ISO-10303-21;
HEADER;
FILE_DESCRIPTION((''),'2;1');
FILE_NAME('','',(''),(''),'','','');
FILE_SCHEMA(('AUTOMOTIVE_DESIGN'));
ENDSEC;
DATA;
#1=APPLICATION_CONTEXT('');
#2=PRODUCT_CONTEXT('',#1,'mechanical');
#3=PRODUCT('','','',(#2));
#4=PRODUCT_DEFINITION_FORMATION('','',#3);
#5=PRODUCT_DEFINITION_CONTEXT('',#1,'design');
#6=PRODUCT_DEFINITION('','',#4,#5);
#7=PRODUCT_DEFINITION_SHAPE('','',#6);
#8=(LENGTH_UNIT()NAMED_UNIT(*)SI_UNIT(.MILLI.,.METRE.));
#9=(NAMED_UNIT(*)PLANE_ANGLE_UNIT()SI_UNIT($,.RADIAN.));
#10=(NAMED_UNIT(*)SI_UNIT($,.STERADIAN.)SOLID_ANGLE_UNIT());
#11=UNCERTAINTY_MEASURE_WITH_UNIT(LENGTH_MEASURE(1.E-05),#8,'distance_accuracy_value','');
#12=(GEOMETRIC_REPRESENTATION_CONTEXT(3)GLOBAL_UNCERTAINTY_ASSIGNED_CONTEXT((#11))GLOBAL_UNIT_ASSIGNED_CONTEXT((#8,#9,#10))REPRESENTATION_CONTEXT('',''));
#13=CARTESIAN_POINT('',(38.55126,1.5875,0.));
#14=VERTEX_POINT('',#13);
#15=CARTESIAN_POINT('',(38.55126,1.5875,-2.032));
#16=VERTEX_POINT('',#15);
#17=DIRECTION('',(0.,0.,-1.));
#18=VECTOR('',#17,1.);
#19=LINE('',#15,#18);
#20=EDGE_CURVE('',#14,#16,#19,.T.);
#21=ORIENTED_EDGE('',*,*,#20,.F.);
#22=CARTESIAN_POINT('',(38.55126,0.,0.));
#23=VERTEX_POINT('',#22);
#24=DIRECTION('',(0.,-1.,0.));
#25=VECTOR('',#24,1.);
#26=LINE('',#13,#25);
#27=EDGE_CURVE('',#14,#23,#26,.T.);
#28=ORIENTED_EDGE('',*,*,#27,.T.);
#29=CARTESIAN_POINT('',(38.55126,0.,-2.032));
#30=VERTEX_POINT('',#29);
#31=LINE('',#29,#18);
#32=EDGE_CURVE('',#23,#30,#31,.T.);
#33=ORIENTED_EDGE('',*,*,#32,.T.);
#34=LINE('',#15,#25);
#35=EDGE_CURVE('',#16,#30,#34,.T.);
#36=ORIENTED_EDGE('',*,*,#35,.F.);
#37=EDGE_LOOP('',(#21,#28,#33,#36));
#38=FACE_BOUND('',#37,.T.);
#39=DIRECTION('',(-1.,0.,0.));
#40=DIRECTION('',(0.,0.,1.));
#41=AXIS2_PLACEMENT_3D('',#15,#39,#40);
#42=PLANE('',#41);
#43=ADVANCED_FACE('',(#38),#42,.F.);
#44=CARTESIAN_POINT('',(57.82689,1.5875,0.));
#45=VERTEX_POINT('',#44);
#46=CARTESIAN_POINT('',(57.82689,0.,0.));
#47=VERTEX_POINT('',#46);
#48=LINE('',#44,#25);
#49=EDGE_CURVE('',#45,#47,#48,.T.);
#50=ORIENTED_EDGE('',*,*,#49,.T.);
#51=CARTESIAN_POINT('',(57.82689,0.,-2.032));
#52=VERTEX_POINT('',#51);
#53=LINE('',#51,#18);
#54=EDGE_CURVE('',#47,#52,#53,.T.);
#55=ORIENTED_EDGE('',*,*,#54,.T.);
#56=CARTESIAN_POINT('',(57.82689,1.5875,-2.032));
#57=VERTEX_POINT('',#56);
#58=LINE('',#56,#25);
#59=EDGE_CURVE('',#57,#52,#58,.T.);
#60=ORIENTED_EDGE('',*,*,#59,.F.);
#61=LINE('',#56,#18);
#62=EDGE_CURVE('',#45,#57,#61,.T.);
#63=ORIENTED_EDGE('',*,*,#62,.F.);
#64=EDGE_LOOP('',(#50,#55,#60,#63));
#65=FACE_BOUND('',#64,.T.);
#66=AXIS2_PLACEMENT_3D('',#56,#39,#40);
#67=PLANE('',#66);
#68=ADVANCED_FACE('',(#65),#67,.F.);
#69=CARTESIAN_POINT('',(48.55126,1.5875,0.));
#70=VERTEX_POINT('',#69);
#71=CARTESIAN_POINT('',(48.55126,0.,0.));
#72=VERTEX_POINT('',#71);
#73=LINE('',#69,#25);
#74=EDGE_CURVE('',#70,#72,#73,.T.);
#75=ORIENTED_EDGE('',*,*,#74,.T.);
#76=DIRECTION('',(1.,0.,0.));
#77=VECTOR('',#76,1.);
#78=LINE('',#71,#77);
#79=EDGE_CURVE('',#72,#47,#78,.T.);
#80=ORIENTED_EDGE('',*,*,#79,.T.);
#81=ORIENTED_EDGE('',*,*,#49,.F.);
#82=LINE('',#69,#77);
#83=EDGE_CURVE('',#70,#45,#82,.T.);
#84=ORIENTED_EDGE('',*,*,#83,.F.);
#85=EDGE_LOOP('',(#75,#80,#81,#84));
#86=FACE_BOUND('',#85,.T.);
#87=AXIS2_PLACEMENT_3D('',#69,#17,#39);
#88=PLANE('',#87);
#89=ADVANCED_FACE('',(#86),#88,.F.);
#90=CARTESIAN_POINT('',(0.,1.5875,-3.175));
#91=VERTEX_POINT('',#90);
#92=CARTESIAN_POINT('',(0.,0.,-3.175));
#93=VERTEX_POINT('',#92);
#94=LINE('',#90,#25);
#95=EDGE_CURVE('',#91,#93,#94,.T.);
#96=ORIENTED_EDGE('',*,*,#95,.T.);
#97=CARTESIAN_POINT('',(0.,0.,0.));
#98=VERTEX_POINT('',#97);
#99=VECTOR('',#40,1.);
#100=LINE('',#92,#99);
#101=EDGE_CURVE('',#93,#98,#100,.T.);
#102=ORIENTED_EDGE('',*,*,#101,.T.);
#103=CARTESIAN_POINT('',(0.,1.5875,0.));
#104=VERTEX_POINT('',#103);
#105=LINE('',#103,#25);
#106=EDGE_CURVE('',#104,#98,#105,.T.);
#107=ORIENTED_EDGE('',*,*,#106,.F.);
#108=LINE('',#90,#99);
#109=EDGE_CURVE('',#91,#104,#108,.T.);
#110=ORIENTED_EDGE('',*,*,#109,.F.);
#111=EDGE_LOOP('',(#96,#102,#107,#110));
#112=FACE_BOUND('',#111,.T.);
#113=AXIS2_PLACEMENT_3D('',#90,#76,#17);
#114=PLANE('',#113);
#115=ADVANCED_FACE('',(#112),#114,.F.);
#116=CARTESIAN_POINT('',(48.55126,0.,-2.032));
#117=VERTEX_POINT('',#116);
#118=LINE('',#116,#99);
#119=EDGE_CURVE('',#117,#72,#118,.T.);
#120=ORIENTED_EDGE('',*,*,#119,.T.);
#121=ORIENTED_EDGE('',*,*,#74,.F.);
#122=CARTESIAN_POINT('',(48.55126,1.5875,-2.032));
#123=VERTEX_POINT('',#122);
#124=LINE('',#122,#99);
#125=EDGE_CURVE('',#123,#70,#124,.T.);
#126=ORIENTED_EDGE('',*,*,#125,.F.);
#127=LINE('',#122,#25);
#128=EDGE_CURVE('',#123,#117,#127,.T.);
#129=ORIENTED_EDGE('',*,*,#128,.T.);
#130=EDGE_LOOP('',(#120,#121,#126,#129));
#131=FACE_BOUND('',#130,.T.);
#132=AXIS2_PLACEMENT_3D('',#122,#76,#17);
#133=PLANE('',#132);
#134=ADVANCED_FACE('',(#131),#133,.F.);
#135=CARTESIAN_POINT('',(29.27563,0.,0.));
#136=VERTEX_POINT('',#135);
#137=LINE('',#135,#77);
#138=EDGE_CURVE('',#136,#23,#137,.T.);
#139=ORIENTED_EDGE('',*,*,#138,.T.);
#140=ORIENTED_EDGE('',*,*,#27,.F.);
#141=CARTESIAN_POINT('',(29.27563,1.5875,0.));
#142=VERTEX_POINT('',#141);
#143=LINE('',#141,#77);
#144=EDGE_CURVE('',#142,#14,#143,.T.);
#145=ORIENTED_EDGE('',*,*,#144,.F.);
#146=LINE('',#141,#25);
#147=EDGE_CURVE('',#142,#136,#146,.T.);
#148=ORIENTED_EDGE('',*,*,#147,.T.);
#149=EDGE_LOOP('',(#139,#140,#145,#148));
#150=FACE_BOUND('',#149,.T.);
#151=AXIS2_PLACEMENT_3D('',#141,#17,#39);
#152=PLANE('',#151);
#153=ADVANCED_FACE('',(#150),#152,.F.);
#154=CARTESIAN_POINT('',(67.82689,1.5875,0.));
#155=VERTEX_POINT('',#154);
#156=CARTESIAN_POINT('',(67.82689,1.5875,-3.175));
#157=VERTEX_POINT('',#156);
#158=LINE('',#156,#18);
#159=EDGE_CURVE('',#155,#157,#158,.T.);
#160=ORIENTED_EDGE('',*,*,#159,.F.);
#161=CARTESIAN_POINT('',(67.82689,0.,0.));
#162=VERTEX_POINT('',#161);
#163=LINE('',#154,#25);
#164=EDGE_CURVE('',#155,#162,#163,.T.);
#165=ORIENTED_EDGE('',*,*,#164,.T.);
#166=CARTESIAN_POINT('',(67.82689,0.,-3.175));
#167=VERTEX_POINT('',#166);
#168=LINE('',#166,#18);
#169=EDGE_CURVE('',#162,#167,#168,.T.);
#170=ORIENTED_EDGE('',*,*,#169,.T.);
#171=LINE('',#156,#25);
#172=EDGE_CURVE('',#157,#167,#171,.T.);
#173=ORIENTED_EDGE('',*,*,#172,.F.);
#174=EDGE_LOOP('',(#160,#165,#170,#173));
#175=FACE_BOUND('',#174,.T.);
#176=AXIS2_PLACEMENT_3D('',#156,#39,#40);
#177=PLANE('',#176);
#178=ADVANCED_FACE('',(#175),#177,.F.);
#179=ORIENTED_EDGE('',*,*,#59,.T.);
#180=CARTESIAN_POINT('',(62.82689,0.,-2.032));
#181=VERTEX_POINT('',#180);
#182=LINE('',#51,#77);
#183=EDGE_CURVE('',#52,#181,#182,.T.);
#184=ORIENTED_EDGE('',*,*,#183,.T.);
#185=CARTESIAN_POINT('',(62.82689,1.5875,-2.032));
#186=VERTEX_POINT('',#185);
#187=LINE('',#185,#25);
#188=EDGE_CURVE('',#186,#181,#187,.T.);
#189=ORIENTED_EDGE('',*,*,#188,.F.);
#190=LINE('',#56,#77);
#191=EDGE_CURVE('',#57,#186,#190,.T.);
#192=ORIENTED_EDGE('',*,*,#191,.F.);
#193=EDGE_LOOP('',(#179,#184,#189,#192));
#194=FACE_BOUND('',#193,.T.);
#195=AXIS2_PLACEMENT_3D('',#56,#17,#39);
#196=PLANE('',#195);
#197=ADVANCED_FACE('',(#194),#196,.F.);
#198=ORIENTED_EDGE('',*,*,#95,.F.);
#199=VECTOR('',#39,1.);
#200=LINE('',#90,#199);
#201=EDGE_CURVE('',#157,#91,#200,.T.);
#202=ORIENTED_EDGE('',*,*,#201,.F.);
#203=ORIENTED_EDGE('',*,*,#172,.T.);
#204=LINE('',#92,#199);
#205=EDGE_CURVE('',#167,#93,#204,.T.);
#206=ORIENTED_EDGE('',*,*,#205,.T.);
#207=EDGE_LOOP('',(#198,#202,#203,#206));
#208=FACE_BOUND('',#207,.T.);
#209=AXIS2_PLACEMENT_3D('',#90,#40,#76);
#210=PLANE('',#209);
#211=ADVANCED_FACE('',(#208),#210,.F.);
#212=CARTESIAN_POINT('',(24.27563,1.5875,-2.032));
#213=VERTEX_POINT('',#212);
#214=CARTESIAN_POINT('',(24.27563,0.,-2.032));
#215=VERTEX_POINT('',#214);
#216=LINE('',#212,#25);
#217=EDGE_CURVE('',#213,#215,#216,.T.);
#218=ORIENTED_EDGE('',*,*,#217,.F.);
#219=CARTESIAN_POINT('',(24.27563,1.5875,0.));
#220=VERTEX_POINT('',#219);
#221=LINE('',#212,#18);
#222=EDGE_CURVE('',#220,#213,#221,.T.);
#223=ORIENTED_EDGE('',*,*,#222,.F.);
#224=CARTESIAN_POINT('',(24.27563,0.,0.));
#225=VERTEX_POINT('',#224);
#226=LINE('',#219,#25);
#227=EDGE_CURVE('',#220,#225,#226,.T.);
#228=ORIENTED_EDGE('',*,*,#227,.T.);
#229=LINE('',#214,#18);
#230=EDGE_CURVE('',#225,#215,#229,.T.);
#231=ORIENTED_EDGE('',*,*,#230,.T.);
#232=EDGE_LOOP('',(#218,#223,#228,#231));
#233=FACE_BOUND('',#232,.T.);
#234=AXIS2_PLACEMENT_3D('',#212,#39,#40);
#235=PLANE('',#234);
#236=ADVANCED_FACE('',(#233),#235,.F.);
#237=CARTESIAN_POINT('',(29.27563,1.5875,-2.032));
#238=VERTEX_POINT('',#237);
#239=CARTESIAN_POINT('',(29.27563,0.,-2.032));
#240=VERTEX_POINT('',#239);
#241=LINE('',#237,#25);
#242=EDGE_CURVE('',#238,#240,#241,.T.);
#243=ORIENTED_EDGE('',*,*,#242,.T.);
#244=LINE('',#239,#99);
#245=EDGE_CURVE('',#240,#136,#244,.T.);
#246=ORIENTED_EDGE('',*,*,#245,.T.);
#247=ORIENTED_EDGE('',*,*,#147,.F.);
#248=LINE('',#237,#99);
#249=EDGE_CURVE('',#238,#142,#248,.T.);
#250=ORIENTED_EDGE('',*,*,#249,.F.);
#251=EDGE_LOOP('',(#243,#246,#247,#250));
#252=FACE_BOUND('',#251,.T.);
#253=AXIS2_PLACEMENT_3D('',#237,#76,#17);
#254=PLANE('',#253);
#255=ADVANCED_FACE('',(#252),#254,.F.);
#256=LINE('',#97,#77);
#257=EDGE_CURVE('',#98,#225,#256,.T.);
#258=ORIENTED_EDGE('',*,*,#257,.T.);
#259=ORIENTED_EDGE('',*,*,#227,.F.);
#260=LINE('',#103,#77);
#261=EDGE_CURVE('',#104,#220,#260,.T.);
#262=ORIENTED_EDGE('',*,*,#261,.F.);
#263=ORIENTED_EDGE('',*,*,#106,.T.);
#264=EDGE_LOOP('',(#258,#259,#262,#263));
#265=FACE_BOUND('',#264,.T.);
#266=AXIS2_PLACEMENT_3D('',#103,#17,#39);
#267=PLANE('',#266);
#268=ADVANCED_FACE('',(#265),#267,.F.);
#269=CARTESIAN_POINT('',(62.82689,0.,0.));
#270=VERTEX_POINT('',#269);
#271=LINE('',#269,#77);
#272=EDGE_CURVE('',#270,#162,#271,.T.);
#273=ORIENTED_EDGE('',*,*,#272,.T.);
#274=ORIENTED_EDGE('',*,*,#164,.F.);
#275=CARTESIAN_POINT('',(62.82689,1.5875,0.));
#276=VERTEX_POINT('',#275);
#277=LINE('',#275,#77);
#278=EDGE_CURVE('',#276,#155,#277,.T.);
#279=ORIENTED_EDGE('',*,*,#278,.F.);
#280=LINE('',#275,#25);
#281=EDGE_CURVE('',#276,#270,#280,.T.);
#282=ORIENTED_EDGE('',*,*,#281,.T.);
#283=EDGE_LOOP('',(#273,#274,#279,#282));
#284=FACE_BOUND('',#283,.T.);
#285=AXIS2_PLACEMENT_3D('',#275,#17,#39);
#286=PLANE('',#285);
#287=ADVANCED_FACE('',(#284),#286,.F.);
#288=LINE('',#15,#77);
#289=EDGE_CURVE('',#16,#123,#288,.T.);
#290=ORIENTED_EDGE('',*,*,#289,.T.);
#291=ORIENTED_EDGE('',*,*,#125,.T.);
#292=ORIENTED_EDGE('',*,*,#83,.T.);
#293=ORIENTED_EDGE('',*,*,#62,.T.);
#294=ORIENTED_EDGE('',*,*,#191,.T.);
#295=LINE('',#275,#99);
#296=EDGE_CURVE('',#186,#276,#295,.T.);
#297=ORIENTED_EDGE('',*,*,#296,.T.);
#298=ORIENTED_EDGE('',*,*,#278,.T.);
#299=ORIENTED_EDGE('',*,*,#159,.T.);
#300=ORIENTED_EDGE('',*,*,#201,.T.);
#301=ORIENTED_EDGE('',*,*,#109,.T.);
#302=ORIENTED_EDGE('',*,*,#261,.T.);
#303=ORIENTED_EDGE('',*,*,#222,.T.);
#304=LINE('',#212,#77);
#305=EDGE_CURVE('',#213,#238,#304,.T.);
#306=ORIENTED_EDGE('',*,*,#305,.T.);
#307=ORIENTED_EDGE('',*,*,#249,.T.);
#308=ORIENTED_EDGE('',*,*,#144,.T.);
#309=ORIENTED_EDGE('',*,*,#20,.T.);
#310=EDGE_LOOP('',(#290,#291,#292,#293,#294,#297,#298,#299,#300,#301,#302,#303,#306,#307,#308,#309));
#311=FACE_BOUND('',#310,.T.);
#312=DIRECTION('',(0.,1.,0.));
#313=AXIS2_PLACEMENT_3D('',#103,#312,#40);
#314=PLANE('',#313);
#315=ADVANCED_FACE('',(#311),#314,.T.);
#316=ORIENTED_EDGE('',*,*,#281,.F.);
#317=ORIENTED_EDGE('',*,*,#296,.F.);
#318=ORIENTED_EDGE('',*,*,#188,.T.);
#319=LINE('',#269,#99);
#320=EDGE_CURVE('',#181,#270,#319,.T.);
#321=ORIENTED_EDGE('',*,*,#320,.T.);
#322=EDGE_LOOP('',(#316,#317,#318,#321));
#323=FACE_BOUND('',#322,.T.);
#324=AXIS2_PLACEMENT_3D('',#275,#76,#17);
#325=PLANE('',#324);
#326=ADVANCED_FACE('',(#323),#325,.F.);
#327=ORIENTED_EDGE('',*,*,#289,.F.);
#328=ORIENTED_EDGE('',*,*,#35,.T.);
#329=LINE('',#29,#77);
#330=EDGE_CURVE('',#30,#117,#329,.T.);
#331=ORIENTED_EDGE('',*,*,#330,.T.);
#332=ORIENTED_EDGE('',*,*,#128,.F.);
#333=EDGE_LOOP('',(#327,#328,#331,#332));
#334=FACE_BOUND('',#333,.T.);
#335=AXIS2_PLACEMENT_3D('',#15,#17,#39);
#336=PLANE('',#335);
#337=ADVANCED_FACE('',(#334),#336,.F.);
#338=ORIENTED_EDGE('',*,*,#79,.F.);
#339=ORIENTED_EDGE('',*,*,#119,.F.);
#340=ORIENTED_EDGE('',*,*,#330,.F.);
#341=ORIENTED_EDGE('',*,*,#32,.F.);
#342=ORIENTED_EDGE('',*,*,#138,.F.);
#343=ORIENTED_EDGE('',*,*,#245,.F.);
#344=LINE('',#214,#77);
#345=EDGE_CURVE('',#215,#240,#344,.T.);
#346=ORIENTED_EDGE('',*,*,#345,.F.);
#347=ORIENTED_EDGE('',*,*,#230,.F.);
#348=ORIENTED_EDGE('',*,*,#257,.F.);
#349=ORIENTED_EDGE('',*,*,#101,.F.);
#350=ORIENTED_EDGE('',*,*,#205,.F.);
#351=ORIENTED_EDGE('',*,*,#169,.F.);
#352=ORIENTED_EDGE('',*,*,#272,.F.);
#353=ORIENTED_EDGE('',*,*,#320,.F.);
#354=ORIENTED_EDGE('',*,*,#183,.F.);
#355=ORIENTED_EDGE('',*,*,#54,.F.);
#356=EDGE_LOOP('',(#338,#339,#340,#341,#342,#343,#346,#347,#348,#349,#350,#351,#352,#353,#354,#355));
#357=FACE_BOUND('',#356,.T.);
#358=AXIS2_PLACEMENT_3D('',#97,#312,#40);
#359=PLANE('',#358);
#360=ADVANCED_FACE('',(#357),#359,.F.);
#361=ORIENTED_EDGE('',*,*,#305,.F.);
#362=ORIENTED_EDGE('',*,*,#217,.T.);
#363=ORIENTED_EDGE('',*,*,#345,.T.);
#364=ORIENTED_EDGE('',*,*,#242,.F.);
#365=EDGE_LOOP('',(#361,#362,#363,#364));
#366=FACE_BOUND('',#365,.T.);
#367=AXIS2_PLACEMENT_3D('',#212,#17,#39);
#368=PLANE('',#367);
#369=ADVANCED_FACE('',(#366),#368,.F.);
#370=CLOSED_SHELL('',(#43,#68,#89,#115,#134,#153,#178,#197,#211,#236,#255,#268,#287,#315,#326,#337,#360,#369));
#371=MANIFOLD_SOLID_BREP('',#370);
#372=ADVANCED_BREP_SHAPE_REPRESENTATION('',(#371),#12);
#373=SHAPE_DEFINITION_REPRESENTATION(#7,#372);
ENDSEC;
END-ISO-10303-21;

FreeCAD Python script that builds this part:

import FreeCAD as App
import Part
import Sketcher
from FreeCAD import Vector
Q = App.Units.Quantity

doc = App.newDocument("Part")
params = doc.addObject("Spreadsheet::Sheet", "Params")
for row, (alias, value) in enumerate([
    ("sketch1_height", "0.08 in"),
    ("sketch1_height2", "0.125 in"),
    ("pad1_length", "0.0625 in"),
], start=1):
    params.set(f"A{row}", alias)
    params.set(f"B{row}", "=" + value)
    params.setAlias(f"B{row}", alias)

body = doc.addObject("PartDesign::Body", "Body")

# Sketch on XZ plane
sketch1 = doc.addObject("Sketcher::SketchObject", "Sketch")
body.addObject(sketch1)
sketch1.AttachmentSupport = (doc.XZ_Plane, [""])
sketch1.MapMode = "FlatFace"
sketch1.addGeometry([
    Part.LineSegment(Vector(0, 0, 0), Vector(24.3, 0, 0)),  # 0
    Part.LineSegment(Vector(24.3, 0, 0), Vector(24.3, -2, 0)),  # 1
    Part.LineSegment(Vector(24.3, -2, 0), Vector(29.3, -2, 0)),  # 2
    Part.LineSegment(Vector(29.3, -2, 0), Vector(29.3, 0, 0)),  # 3
    Part.LineSegment(Vector(29.3, 0, 0), Vector(38.6, 0, 0)),  # 4
    Part.LineSegment(Vector(38.6, 0, 0), Vector(38.6, -2, 0)),  # 5
    Part.LineSegment(Vector(38.6, -2, 0), Vector(48.6, -2, 0)),  # 6
    Part.LineSegment(Vector(48.6, -2, 0), Vector(48.6, 0, 0)),  # 7
    Part.LineSegment(Vector(48.6, 0, 0), Vector(57.8, 0, 0)),  # 8
    Part.LineSegment(Vector(57.8, 0, 0), Vector(57.8, -2, 0)),  # 9
    Part.LineSegment(Vector(57.8, -2, 0), Vector(62.8, -2, 0)),  # 10
    Part.LineSegment(Vector(62.8, -2, 0), Vector(62.8, 0, 0)),  # 11
    Part.LineSegment(Vector(62.8, 0, 0), Vector(67.8, 0, 0)),  # 12
    Part.LineSegment(Vector(67.8, 0, 0), Vector(67.8, -3.2, 0)),  # 13
    Part.LineSegment(Vector(67.8, -3.2, 0), Vector(0, -3.2, 0)),  # 14
    Part.LineSegment(Vector(0, -3.2, 0), Vector(0, 0, 0)),  # 15
], False)
sketch1.addConstraint([
    Sketcher.Constraint("Coincident", 0, 2, 1, 1),
    Sketcher.Constraint("Coincident", 1, 2, 2, 1),
    Sketcher.Constraint("Coincident", 2, 2, 3, 1),
    Sketcher.Constraint("Coincident", 3, 2, 4, 1),
    Sketcher.Constraint("Coincident", 4, 2, 5, 1),
    Sketcher.Constraint("Coincident", 5, 2, 6, 1),
    Sketcher.Constraint("Coincident", 6, 2, 7, 1),
    Sketcher.Constraint("Coincident", 7, 2, 8, 1),
    Sketcher.Constraint("Coincident", 8, 2, 9, 1),
    Sketcher.Constraint("Coincident", 9, 2, 10, 1),
    Sketcher.Constraint("Coincident", 10, 2, 11, 1),
    Sketcher.Constraint("Coincident", 11, 2, 12, 1),
    Sketcher.Constraint("Coincident", 12, 2, 13, 1),
    Sketcher.Constraint("Coincident", 13, 2, 14, 1),
    Sketcher.Constraint("Coincident", 14, 2, 15, 1),
    Sketcher.Constraint("Coincident", 15, 2, 0, 1),
    Sketcher.Constraint("Horizontal", 0),
    Sketcher.Constraint("Vertical", 1),
    Sketcher.Constraint("Horizontal", 2),
    Sketcher.Constraint("Vertical", 3),
    Sketcher.Constraint("Horizontal", 4),
    Sketcher.Constraint("Vertical", 5),
    Sketcher.Constraint("Horizontal", 6),
    Sketcher.Constraint("Vertical", 7),
    Sketcher.Constraint("Horizontal", 8),
    Sketcher.Constraint("Vertical", 9),
    Sketcher.Constraint("Horizontal", 10),
    Sketcher.Constraint("Vertical", 11),
    Sketcher.Constraint("Horizontal", 12),
    Sketcher.Constraint("Vertical", 13),
    Sketcher.Constraint("Horizontal", 14),
    Sketcher.Constraint("Vertical", 15),
    Sketcher.Constraint("Coincident", 15, 2, -1, 1),
    Sketcher.Constraint("PointOnObject", 3, 2, -1),
    Sketcher.Constraint("PointOnObject", 7, 2, -1),
    Sketcher.Constraint("PointOnObject", 11, 2, -1),
    Sketcher.Constraint("Horizontal", 2, 2, 5, 2),
    Sketcher.Constraint("Horizontal", 6, 2, 9, 2),
    Sketcher.Constraint("Equal", 4, 8),
    Sketcher.Constraint("Equal", 2, 10),
    Sketcher.Constraint("Equal", 10, 12),
    Sketcher.Constraint("DistanceY", 1, 2, 1, 1, Q("0.08 in")),
    Sketcher.Constraint("DistanceY", 13, 2, 13, 1, Q("0.125 in")),
    Sketcher.Constraint("DistanceX", 2, 1, 2, 2, Q("5 mm")),
    Sketcher.Constraint("DistanceX", 6, 1, 6, 2, Q("10 mm")),
    Sketcher.Constraint("DistanceX", 0, 1, 0, 2, Q("24.27563 mm")),
    Sketcher.Constraint("DistanceX", 4, 1, 4, 2, Q("9.275629 mm")),
])
sketch1.setExpression("Constraints[41]", "Params.sketch1_height")
sketch1.setExpression("Constraints[42]", "Params.sketch1_height2")
pad1 = doc.addObject("PartDesign::Pad", "Pad")
body.addObject(pad1)
pad1.Profile = sketch1
pad1.setExpression("Length", "Params.pad1_length")
pad1.Reversed = True

doc.recompute()
